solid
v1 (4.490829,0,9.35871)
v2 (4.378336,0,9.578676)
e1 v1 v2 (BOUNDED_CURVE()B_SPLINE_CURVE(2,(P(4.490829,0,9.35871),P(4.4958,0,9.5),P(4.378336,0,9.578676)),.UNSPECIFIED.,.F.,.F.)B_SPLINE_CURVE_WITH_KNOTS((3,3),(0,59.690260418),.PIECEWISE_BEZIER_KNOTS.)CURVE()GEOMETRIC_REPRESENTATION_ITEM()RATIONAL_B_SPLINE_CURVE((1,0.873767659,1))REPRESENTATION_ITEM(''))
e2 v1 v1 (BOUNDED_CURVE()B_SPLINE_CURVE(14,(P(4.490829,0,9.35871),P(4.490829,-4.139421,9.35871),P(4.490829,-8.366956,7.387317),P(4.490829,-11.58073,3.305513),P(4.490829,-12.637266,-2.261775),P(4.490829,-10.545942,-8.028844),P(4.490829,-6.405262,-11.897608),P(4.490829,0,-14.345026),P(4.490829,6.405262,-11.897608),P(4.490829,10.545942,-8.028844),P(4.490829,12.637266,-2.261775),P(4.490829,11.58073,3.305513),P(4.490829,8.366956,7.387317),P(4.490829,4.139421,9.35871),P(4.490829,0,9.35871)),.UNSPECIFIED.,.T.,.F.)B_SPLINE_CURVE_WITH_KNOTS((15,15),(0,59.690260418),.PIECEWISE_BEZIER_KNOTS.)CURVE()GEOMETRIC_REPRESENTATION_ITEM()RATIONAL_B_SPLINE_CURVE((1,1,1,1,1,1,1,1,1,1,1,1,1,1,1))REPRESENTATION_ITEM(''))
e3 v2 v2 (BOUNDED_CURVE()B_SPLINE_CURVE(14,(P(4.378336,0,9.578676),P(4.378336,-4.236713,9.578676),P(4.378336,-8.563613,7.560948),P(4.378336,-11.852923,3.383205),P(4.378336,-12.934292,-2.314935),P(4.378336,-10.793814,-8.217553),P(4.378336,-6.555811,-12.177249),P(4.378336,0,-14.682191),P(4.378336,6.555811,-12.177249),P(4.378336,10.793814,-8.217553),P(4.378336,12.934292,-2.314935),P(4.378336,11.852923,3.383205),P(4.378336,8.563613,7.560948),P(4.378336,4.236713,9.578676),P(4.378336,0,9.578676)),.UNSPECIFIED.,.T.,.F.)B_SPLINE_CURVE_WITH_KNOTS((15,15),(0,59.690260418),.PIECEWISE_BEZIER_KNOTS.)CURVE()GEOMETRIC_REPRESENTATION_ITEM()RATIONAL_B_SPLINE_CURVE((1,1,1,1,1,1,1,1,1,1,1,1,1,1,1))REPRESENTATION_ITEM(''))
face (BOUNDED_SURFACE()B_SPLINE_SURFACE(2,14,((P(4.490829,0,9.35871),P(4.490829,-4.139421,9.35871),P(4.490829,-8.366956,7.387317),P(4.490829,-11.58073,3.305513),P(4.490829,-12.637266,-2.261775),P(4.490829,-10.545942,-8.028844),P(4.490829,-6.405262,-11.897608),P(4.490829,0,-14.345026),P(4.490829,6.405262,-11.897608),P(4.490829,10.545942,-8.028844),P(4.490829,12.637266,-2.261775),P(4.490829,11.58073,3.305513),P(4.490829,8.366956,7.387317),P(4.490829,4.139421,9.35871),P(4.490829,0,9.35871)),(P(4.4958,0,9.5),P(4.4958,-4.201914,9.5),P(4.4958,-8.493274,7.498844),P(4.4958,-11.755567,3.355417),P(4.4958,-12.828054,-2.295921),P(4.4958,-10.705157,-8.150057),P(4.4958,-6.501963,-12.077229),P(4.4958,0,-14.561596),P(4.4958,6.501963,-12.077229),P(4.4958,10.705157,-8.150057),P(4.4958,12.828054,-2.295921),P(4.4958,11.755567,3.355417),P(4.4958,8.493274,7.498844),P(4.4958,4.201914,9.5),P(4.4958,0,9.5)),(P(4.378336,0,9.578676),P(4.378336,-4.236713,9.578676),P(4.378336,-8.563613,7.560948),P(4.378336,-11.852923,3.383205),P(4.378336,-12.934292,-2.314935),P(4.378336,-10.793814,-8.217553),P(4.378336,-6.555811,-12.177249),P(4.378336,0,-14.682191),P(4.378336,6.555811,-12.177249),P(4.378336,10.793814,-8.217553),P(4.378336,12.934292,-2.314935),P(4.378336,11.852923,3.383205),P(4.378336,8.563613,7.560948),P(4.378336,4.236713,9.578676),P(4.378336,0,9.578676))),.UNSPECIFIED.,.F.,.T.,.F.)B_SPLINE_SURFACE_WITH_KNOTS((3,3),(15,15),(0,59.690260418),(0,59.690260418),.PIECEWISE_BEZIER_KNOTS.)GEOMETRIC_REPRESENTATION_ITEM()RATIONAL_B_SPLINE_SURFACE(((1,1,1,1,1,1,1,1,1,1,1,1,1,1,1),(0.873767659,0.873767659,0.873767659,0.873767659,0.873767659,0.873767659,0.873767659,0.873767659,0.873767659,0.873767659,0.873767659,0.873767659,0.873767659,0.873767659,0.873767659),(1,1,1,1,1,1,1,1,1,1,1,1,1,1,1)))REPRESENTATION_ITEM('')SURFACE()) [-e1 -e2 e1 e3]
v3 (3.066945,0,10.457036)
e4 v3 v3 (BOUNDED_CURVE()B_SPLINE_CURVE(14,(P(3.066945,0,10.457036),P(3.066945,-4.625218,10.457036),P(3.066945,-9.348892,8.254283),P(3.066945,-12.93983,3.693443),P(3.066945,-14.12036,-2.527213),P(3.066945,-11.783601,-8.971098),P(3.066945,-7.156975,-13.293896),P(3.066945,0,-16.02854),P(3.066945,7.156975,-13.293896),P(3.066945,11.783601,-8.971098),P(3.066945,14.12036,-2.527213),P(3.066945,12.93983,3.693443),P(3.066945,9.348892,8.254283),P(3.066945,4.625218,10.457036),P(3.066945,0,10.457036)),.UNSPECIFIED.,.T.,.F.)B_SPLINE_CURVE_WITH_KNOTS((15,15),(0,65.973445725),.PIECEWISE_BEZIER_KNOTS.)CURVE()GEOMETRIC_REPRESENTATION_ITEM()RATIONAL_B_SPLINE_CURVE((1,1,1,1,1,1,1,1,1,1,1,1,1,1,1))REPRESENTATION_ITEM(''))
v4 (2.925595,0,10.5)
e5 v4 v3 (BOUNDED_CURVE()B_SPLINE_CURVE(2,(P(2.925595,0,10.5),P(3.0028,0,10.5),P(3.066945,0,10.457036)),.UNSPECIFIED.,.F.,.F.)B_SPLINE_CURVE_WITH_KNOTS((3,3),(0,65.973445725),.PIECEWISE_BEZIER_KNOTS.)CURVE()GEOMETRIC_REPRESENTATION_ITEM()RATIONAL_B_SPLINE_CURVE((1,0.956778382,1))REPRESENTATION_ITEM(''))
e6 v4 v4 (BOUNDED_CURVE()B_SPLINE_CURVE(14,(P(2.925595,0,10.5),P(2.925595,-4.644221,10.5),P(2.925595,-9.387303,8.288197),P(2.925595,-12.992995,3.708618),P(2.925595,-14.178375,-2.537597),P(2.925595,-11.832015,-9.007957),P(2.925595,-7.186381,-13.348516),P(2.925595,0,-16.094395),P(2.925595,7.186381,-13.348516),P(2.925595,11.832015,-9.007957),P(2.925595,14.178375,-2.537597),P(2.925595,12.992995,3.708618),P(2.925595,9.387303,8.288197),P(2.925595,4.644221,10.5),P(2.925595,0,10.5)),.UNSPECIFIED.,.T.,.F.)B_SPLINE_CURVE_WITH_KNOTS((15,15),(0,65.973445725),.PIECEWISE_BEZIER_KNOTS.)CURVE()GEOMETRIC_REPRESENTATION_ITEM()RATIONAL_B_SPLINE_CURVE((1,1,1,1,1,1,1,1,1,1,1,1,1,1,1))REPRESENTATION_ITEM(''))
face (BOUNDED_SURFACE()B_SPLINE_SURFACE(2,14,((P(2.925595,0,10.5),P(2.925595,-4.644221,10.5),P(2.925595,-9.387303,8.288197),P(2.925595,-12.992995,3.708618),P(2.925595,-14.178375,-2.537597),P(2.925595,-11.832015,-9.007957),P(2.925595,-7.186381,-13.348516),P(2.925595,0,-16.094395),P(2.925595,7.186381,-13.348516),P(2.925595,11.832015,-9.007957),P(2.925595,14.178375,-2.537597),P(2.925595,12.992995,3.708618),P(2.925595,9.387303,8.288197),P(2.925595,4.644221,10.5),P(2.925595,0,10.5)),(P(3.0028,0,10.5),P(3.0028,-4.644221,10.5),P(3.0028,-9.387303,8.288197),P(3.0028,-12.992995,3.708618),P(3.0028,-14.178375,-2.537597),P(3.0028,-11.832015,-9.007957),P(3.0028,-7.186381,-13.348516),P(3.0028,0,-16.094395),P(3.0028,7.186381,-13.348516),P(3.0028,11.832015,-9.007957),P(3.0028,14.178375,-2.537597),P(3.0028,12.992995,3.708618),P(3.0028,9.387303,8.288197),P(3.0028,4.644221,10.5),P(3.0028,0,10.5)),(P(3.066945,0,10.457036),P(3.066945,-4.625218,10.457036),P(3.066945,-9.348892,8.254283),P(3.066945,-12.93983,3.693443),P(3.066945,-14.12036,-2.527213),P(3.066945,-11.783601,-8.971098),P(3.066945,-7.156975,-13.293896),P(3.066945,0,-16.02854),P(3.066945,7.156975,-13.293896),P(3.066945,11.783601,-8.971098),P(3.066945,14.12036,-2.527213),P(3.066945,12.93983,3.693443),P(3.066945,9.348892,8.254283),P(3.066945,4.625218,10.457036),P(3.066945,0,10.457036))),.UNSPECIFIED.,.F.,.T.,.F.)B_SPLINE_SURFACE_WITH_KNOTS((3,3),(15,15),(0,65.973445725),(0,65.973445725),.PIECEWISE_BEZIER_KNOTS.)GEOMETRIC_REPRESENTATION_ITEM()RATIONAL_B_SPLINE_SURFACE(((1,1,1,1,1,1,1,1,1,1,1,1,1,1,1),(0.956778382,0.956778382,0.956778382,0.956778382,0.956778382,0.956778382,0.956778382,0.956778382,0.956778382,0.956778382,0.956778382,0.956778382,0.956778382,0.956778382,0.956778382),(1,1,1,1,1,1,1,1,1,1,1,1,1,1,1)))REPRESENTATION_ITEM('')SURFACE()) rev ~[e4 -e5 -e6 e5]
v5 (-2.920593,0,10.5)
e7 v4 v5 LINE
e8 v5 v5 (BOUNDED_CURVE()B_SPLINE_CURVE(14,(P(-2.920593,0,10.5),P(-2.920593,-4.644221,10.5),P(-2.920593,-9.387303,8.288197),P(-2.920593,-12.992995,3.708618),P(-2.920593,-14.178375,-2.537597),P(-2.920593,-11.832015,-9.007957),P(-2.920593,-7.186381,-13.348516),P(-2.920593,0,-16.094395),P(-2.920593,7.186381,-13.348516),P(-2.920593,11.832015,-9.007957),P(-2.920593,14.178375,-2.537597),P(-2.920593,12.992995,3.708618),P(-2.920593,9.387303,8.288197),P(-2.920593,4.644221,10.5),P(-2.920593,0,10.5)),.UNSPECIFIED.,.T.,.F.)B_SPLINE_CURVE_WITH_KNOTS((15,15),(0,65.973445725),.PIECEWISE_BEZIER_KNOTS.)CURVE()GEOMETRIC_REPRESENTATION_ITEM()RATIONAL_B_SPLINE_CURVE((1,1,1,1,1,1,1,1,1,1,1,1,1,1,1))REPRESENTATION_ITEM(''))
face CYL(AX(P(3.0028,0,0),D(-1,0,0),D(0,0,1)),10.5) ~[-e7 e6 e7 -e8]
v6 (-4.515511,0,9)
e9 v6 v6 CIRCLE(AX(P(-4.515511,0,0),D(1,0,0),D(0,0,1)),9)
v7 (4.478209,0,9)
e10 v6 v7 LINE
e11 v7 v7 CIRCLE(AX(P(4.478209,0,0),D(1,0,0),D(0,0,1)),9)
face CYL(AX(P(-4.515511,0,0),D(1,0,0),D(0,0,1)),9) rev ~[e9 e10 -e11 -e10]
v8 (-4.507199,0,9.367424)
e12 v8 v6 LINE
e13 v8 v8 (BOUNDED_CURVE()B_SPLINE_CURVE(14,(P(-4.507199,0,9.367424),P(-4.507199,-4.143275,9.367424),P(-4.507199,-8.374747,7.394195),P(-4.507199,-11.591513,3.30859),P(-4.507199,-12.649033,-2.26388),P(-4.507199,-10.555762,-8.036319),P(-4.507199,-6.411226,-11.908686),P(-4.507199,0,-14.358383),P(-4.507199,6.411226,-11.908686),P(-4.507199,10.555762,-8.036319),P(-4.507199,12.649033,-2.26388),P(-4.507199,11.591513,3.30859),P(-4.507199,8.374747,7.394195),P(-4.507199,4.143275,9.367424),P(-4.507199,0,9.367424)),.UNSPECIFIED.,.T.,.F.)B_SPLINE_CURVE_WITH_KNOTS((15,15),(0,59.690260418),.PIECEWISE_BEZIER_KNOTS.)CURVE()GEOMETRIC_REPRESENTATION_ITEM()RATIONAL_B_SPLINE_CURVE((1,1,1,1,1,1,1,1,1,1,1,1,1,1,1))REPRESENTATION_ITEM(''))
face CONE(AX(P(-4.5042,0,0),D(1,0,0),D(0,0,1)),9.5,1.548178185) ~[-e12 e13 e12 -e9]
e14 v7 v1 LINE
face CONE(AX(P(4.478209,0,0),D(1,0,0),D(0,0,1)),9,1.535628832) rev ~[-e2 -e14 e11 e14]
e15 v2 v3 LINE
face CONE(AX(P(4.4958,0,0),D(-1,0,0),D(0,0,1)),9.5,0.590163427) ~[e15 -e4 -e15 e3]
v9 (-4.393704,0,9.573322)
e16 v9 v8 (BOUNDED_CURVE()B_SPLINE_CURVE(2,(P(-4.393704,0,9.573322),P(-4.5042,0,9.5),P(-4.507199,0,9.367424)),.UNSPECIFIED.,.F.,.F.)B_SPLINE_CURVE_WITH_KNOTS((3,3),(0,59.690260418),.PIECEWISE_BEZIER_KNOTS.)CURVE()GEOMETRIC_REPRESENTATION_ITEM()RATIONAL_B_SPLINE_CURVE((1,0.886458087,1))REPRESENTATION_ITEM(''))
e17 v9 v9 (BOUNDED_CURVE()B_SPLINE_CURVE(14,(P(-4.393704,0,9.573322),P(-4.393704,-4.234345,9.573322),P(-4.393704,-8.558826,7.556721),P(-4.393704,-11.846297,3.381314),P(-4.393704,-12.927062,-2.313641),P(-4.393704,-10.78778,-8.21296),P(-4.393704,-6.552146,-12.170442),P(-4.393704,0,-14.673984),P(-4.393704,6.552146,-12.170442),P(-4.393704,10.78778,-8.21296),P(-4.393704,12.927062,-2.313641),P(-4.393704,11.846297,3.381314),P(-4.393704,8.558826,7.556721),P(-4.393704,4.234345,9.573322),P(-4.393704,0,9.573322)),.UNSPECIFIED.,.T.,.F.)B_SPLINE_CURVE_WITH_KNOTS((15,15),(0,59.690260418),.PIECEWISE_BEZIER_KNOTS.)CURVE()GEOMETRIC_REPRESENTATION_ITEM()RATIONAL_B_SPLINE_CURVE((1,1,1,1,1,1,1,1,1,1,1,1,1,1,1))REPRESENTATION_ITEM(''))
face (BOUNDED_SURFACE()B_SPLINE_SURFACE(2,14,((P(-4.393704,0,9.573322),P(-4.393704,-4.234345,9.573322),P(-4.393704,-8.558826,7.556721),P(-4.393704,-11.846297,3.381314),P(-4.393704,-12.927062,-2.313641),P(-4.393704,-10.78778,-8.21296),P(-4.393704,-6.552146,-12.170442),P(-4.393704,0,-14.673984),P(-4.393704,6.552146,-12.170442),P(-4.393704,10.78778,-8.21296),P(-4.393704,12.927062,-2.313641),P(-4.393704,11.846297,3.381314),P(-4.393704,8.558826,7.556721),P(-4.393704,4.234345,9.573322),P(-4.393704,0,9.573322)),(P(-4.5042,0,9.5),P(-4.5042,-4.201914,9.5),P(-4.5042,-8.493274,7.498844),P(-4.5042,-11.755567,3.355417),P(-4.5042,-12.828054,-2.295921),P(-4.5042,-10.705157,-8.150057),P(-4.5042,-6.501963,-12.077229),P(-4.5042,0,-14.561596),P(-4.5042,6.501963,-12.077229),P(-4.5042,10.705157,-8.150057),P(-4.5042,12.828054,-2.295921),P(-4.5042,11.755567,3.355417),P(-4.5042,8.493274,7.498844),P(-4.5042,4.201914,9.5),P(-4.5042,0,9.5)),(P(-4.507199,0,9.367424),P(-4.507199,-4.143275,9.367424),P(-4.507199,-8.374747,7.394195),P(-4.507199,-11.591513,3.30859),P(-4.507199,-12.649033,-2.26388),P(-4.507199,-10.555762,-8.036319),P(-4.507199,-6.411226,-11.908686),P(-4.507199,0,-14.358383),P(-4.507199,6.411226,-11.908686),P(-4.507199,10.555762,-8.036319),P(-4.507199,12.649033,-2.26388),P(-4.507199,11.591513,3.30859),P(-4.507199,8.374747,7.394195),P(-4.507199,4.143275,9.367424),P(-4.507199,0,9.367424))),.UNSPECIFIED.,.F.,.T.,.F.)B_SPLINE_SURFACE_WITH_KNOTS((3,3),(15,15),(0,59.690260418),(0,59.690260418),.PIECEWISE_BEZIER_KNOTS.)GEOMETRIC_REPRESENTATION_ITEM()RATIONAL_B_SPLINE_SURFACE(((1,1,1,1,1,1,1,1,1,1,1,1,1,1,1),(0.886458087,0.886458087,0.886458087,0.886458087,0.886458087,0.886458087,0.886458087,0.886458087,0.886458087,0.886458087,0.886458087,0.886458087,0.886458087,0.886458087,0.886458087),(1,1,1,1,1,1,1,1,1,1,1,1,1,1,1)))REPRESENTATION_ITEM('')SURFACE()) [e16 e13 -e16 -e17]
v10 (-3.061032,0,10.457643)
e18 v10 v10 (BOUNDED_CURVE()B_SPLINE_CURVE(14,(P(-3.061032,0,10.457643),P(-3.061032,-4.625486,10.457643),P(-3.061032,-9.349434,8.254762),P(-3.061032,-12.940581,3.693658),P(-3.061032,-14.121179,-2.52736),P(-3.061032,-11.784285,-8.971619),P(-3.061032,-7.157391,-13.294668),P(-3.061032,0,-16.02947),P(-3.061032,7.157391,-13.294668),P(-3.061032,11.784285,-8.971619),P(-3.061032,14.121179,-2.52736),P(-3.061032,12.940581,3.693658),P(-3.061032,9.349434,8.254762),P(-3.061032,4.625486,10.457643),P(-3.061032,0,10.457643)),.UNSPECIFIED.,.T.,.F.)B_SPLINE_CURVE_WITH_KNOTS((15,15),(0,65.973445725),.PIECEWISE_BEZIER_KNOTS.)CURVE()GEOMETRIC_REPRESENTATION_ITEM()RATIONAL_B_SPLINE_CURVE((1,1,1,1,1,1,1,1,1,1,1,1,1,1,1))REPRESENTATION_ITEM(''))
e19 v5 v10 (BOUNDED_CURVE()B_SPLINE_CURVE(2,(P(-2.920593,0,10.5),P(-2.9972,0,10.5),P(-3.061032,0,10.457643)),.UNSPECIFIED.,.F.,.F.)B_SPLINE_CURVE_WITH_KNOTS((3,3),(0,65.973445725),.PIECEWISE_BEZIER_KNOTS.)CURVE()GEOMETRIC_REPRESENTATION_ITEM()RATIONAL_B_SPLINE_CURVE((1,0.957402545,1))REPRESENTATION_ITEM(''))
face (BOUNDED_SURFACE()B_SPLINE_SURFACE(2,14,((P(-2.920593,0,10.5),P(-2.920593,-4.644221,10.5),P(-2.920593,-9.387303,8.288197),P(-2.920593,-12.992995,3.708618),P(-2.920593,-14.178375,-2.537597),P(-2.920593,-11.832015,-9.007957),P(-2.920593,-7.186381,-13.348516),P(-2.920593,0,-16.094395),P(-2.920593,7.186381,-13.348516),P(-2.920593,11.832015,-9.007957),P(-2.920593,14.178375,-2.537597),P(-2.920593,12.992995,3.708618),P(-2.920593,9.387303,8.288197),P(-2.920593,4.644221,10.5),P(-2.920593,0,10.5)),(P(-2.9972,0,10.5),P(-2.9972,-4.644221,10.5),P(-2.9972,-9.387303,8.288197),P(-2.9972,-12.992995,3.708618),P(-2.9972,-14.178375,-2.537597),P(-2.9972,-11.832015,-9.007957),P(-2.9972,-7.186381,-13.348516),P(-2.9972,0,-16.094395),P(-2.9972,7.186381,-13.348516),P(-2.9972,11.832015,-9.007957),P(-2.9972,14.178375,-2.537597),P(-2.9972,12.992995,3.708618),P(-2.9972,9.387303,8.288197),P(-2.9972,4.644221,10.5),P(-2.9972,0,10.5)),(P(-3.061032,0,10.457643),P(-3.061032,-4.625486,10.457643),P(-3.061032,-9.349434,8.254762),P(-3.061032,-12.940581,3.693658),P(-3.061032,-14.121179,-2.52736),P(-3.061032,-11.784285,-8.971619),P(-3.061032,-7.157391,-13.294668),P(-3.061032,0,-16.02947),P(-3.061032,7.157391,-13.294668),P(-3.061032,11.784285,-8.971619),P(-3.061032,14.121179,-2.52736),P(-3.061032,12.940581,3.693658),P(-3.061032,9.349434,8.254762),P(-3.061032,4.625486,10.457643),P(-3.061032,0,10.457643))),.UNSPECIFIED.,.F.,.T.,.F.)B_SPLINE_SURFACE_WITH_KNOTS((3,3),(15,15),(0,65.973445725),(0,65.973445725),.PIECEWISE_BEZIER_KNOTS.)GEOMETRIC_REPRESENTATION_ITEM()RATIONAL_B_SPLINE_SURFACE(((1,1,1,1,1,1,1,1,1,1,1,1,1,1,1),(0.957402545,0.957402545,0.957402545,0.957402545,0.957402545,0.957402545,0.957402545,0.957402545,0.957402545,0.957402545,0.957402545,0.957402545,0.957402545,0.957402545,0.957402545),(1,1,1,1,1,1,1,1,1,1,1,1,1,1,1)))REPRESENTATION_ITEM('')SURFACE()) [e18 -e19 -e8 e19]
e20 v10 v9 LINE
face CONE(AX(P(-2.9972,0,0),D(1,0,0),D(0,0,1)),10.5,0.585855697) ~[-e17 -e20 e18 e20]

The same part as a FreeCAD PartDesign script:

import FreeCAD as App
import Part
import Sketcher
Q = App.Units.Quantity


def edges_at(feature, points):
    """Names of the edges that pass closest to the given points."""
    edges = feature.Shape.Edges
    near = lambda p: min(range(len(edges)), key=lambda i: edges[i].distToShape(Part.Vertex(*p))[0])
    return sorted({f"Edge{near(p) + 1}" for p in points})

doc = App.newDocument("Part")
body = doc.addObject("PartDesign::Body", "Body")

# Sketch on XZ plane
sketch1 = body.newObject("Sketcher::SketchObject", "Sketch")
sketch1.AttachmentSupport = (doc.getObject("XZ_Plane"), [""])
sketch1.MapMode = "FlatFace"
sketch1.addGeometry([
    Part.LineSegment(App.Vector(3.0028, 10.5, 0), App.Vector(-2.9972, 10.5, 0)),  # 0
    Part.LineSegment(App.Vector(-2.9972, 10.5, 0), App.Vector(-4.5042, 9.5, 0)),  # 1
    Part.LineSegment(App.Vector(-4.5042, 9.5, 0), App.Vector(-4.515511, 9, 0)),  # 2
    Part.LineSegment(App.Vector(-4.515511, 9, 0), App.Vector(4.478209, 9, 0)),  # 3
    Part.LineSegment(App.Vector(4.478209, 9, 0), App.Vector(4.4958, 9.5, 0)),  # 4
    Part.LineSegment(App.Vector(4.4958, 9.5, 0), App.Vector(3.0028, 10.5, 0)),  # 5
], False)
sketch1.addConstraint([
    Sketcher.Constraint("Coincident", 0, 2, 1, 1),
    Sketcher.Constraint("Coincident", 1, 2, 2, 1),
    Sketcher.Constraint("Coincident", 2, 2, 3, 1),
    Sketcher.Constraint("Coincident", 3, 2, 4, 1),
    Sketcher.Constraint("Coincident", 4, 2, 5, 1),
    Sketcher.Constraint("Coincident", 5, 2, 0, 1),
    Sketcher.Constraint("Horizontal", 0),
    Sketcher.Constraint("Horizontal", 3),
    Sketcher.Constraint("Horizontal", 1, 2, 4, 2),
    Sketcher.Constraint("DistanceX", 0, 2, 0, 1, Q("6 mm")),
    Sketcher.Constraint("DistanceY", -1, 1, 2, 2, Q("9 mm")),
    Sketcher.Constraint("DistanceY", 1, 2, 0, 2, Q("1 mm")),
    Sketcher.Constraint("DistanceX", 1, 2, 4, 2, Q("9 mm")),
    Sketcher.Constraint("DistanceY", -1, 1, 0, 2, Q("10.5 mm")),
    Sketcher.Constraint("DistanceX", 1, 2, 0, 2, Q("1.507 mm")),
    Sketcher.Constraint("DistanceX", 3, 1, 3, 2, Q("8.99372 mm")),
    Sketcher.Constraint("DistanceX", 0, 2, -1, 1, Q("2.9972 mm")),
    Sketcher.Constraint("Distance", 4, Q("0.500309 mm")),
])
revolution = body.newObject("PartDesign::Revolution", "Revolution")
revolution.Profile = sketch1
revolution.ReferenceAxis = (sketch1, ["H_Axis"])
revolution.Angle = 360
doc.recompute()

fillet = body.newObject("PartDesign::Fillet", "Fillet")
fillet.Base = (revolution, edges_at(revolution, [
    (4.496, 0, -9.5),
    (-4.504, 0, -9.5),
    (-2.997, 0, -10.5),
    (3.003, 0, -10.5),
]))
fillet.Radius = 0.254

doc.recompute()
